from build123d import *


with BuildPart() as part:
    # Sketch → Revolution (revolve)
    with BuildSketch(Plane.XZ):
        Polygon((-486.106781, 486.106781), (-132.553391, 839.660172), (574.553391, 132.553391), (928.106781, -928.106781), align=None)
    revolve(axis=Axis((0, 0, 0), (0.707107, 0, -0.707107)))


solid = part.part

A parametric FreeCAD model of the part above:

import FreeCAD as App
import Part
import Sketcher

V = App.Vector
Q = App.Units.Quantity

doc = App.newDocument("Part")
body = doc.addObject("PartDesign::Body", "Body")

# Sketch on XZ plane
sketch1 = body.newObject("Sketcher::SketchObject", "Sketch")
sketch1.AttachmentSupport = (doc.getObject("XZ_Plane"), [""])
sketch1.MapMode = "FlatFace"
sketch1.addGeometry(Part.LineSegment(V(-133, 840, 0), V(-486, 486, 0)), False)
sketch1.addGeometry(Part.LineSegment(V(-486, 486, 0), V(928, -928, 0)), False)
sketch1.addGeometry(Part.LineSegment(V(928, -928, 0), V(575, 133, 0)), False)
sketch1.addGeometry(Part.LineSegment(V(575, 133, 0), V(-133, 840, 0)), False)
sketch1.addGeometry(Part.LineSegment(V(-486, 486, 0), V(928, -928, 0)), True)  # axis
sketch1.addConstraint(Sketcher.Constraint("Coincident", 0, 2, 1, 1))
sketch1.addConstraint(Sketcher.Constraint("Coincident", 1, 2, 2, 1))
sketch1.addConstraint(Sketcher.Constraint("Coincident", 2, 2, 3, 1))
sketch1.addConstraint(Sketcher.Constraint("Coincident", 3, 2, 0, 1))
sketch1.addConstraint(Sketcher.Constraint("Coincident", 4, 1, 0, 2))
sketch1.addConstraint(Sketcher.Constraint("Coincident", 4, 2, 1, 2))
sketch1.addConstraint(Sketcher.Constraint("Perpendicular", 0, 1))
sketch1.addConstraint(Sketcher.Constraint("Parallel", 1, 3))
sketch1.addConstraint(Sketcher.Constraint("Angle", 0, Q("-135 deg")))
sketch1.addConstraint(Sketcher.Constraint("Distance", 0, Q("500 mm")))
sketch1.addConstraint(Sketcher.Constraint("Distance", 1, Q("1999.999999 mm")))
sketch1.addConstraint(Sketcher.Constraint("Distance", 3, Q("1000 mm")))
sketch1.addConstraint(Sketcher.Constraint("DistanceX", 0, 2, -1, 1, Q("486.106781 mm")))
sketch1.addConstraint(Sketcher.Constraint("DistanceY", -1, 1, 0, 2, Q("486.106781 mm")))
revolution = body.newObject("PartDesign::Revolution", "Revolution")
revolution.Profile = sketch1
revolution.ReferenceAxis = (sketch1, ["Axis0"])
revolution.Angle = 360

doc.recompute()
